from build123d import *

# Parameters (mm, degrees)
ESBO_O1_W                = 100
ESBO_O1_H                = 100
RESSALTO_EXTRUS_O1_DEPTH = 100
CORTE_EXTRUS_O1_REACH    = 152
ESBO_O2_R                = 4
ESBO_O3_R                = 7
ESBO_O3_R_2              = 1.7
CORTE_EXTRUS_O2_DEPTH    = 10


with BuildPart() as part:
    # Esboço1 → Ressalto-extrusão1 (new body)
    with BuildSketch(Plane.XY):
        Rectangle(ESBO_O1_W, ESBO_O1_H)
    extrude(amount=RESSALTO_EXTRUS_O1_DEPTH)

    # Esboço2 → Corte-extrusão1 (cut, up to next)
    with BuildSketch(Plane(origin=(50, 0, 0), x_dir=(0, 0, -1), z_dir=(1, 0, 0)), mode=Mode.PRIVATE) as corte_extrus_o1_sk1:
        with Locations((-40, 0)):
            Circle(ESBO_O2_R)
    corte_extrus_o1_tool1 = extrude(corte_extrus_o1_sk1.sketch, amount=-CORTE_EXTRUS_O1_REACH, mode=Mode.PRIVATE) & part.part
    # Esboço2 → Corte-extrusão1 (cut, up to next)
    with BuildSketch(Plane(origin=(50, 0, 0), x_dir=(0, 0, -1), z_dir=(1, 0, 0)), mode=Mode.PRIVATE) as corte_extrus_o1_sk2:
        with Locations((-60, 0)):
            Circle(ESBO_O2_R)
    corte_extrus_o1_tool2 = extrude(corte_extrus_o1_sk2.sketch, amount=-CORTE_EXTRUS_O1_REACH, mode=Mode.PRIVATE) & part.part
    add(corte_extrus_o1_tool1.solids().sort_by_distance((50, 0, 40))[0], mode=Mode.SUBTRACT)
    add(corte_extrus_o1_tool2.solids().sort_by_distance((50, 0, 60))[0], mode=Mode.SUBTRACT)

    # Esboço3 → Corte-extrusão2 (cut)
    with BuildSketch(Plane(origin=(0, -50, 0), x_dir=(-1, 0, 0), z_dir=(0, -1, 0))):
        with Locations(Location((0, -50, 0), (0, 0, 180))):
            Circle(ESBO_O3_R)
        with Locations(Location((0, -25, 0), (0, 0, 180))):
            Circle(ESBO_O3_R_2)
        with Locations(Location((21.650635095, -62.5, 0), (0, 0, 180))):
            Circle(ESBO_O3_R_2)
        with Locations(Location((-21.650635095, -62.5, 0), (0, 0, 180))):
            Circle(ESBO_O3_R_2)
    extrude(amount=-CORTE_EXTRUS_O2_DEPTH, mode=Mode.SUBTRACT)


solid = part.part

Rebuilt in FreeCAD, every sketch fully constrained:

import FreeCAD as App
import Part
import Sketcher
from FreeCAD import Vector
Q = App.Units.Quantity

doc = App.newDocument("Part")
body = doc.addObject("PartDesign::Body", "Body")

# Sketch on XY plane
sketch1 = body.newObject("Sketcher::SketchObject", "Sketch")
sketch1.AttachmentSupport = (doc.getObject("XY_Plane"), [""])
sketch1.MapMode = "FlatFace"
sketch1.addGeometry([
    Part.LineSegment(Vector(-50, 50, 0), Vector(-50, -50, 0)),
    Part.LineSegment(Vector(-50, -50, 0), Vector(50, -50, 0)),
    Part.LineSegment(Vector(50, -50, 0), Vector(50, 50, 0)),
    Part.LineSegment(Vector(50, 50, 0), Vector(-50, 50, 0)),
], False)
sketch1.addConstraint([
    Sketcher.Constraint("Coincident", 0, 2, 1, 1),
    Sketcher.Constraint("Coincident", 1, 2, 2, 1),
    Sketcher.Constraint("Coincident", 2, 2, 3, 1),
    Sketcher.Constraint("Coincident", 3, 2, 0, 1),
    Sketcher.Constraint("Vertical", 0),
    Sketcher.Constraint("Horizontal", 1),
    Sketcher.Constraint("Vertical", 2),
    Sketcher.Constraint("Horizontal", 3),
    Sketcher.Constraint("Symmetric", 0, 2, 2, 2, -1, 1),
    Sketcher.Constraint("Equal", 3, 0),
    Sketcher.Constraint("DistanceX", 1, 1, 1, 2, Q("100 mm")),
])
pad1 = body.newObject("PartDesign::Pad", "Pad")
pad1.Profile = sketch1
pad1.Length = 100

# Sketch on YZ plane
sketch2 = body.newObject("Sketcher::SketchObject", "Sketch001")
sketch2.AttachmentSupport = (doc.getObject("YZ_Plane"), [""])
sketch2.MapMode = "FlatFace"
sketch2.AttachmentOffset = App.Placement(Vector(0, 0, 50), App.Rotation())
sketch2.addGeometry(Part.Circle(Vector(0, 40, 0), Vector(0, 0, 1), 4), False)
sketch2.addConstraint([
    Sketcher.Constraint("PointOnObject", 0, 3, -2),
    Sketcher.Constraint("Diameter", 0, Q("8 mm")),
    Sketcher.Constraint("DistanceY", -1, 1, 0, 3, Q("40 mm")),
])
pocket1 = body.newObject("PartDesign::Pocket", "Pocket")
pocket1.Profile = sketch2
pocket1.Type = "UpToFirst"

# Sketch on YZ plane
sketch3 = body.newObject("Sketcher::SketchObject", "Sketch002")
sketch3.AttachmentSupport = (doc.getObject("YZ_Plane"), [""])
sketch3.MapMode = "FlatFace"
sketch3.AttachmentOffset = App.Placement(Vector(0, 0, 50), App.Rotation())
sketch3.addGeometry(Part.Circle(Vector(0, 60, 0), Vector(0, 0, 1), 4), False)
sketch3.addConstraint([
    Sketcher.Constraint("PointOnObject", 0, 3, -2),
    Sketcher.Constraint("Diameter", 0, Q("8 mm")),
    Sketcher.Constraint("DistanceY", -1, 1, 0, 3, Q("60 mm")),
])
pocket2 = body.newObject("PartDesign::Pocket", "Pocket001")
pocket2.Profile = sketch3
pocket2.Type = "UpToFirst"

# Sketch on XZ plane
sketch4 = body.newObject("Sketcher::SketchObject", "Sketch003")
sketch4.AttachmentSupport = (doc.getObject("XZ_Plane"), [""])
sketch4.MapMode = "FlatFace"
sketch4.AttachmentOffset = App.Placement(Vector(0, 0, 50), App.Rotation())
sketch4.addGeometry([
    Part.Circle(Vector(0, 50, 0), Vector(0, 0, 1), 7),
    Part.Circle(Vector(0, 25, 0), Vector(0, 0, 1), 1.7),
    Part.Circle(Vector(-21.7, 62.5, 0), Vector(0, 0, 1), 1.7),
    Part.Circle(Vector(21.7, 62.5, 0), Vector(0, 0, 1), 1.7),
], False)
sketch4.addConstraint([
    Sketcher.Constraint("Equal", 1, 2),
    Sketcher.Constraint("Equal", 2, 3),
    Sketcher.Constraint("Symmetric", 2, 3, 3, 3, -2),
    Sketcher.Constraint("PointOnObject", 0, 3, -2),
    Sketcher.Constraint("PointOnObject", 1, 3, -2),
    Sketcher.Constraint("Diameter", 0, Q("14 mm")),
    Sketcher.Constraint("Diameter", 1, Q("3.4 mm")),
    Sketcher.Constraint("DistanceY", -1, 1, 0, 3, Q("50 mm")),
    Sketcher.Constraint("DistanceY", -1, 1, 1, 3, Q("25 mm")),
    Sketcher.Constraint("DistanceY", -1, 1, 2, 3, Q("62.5 mm")),
    Sketcher.Constraint("DistanceX", 2, 3, 3, 3, Q("43.30127 mm")),
])
pocket3 = body.newObject("PartDesign::Pocket", "Pocket002")
pocket3.Profile = sketch4
pocket3.Length = 10

doc.recompute()
